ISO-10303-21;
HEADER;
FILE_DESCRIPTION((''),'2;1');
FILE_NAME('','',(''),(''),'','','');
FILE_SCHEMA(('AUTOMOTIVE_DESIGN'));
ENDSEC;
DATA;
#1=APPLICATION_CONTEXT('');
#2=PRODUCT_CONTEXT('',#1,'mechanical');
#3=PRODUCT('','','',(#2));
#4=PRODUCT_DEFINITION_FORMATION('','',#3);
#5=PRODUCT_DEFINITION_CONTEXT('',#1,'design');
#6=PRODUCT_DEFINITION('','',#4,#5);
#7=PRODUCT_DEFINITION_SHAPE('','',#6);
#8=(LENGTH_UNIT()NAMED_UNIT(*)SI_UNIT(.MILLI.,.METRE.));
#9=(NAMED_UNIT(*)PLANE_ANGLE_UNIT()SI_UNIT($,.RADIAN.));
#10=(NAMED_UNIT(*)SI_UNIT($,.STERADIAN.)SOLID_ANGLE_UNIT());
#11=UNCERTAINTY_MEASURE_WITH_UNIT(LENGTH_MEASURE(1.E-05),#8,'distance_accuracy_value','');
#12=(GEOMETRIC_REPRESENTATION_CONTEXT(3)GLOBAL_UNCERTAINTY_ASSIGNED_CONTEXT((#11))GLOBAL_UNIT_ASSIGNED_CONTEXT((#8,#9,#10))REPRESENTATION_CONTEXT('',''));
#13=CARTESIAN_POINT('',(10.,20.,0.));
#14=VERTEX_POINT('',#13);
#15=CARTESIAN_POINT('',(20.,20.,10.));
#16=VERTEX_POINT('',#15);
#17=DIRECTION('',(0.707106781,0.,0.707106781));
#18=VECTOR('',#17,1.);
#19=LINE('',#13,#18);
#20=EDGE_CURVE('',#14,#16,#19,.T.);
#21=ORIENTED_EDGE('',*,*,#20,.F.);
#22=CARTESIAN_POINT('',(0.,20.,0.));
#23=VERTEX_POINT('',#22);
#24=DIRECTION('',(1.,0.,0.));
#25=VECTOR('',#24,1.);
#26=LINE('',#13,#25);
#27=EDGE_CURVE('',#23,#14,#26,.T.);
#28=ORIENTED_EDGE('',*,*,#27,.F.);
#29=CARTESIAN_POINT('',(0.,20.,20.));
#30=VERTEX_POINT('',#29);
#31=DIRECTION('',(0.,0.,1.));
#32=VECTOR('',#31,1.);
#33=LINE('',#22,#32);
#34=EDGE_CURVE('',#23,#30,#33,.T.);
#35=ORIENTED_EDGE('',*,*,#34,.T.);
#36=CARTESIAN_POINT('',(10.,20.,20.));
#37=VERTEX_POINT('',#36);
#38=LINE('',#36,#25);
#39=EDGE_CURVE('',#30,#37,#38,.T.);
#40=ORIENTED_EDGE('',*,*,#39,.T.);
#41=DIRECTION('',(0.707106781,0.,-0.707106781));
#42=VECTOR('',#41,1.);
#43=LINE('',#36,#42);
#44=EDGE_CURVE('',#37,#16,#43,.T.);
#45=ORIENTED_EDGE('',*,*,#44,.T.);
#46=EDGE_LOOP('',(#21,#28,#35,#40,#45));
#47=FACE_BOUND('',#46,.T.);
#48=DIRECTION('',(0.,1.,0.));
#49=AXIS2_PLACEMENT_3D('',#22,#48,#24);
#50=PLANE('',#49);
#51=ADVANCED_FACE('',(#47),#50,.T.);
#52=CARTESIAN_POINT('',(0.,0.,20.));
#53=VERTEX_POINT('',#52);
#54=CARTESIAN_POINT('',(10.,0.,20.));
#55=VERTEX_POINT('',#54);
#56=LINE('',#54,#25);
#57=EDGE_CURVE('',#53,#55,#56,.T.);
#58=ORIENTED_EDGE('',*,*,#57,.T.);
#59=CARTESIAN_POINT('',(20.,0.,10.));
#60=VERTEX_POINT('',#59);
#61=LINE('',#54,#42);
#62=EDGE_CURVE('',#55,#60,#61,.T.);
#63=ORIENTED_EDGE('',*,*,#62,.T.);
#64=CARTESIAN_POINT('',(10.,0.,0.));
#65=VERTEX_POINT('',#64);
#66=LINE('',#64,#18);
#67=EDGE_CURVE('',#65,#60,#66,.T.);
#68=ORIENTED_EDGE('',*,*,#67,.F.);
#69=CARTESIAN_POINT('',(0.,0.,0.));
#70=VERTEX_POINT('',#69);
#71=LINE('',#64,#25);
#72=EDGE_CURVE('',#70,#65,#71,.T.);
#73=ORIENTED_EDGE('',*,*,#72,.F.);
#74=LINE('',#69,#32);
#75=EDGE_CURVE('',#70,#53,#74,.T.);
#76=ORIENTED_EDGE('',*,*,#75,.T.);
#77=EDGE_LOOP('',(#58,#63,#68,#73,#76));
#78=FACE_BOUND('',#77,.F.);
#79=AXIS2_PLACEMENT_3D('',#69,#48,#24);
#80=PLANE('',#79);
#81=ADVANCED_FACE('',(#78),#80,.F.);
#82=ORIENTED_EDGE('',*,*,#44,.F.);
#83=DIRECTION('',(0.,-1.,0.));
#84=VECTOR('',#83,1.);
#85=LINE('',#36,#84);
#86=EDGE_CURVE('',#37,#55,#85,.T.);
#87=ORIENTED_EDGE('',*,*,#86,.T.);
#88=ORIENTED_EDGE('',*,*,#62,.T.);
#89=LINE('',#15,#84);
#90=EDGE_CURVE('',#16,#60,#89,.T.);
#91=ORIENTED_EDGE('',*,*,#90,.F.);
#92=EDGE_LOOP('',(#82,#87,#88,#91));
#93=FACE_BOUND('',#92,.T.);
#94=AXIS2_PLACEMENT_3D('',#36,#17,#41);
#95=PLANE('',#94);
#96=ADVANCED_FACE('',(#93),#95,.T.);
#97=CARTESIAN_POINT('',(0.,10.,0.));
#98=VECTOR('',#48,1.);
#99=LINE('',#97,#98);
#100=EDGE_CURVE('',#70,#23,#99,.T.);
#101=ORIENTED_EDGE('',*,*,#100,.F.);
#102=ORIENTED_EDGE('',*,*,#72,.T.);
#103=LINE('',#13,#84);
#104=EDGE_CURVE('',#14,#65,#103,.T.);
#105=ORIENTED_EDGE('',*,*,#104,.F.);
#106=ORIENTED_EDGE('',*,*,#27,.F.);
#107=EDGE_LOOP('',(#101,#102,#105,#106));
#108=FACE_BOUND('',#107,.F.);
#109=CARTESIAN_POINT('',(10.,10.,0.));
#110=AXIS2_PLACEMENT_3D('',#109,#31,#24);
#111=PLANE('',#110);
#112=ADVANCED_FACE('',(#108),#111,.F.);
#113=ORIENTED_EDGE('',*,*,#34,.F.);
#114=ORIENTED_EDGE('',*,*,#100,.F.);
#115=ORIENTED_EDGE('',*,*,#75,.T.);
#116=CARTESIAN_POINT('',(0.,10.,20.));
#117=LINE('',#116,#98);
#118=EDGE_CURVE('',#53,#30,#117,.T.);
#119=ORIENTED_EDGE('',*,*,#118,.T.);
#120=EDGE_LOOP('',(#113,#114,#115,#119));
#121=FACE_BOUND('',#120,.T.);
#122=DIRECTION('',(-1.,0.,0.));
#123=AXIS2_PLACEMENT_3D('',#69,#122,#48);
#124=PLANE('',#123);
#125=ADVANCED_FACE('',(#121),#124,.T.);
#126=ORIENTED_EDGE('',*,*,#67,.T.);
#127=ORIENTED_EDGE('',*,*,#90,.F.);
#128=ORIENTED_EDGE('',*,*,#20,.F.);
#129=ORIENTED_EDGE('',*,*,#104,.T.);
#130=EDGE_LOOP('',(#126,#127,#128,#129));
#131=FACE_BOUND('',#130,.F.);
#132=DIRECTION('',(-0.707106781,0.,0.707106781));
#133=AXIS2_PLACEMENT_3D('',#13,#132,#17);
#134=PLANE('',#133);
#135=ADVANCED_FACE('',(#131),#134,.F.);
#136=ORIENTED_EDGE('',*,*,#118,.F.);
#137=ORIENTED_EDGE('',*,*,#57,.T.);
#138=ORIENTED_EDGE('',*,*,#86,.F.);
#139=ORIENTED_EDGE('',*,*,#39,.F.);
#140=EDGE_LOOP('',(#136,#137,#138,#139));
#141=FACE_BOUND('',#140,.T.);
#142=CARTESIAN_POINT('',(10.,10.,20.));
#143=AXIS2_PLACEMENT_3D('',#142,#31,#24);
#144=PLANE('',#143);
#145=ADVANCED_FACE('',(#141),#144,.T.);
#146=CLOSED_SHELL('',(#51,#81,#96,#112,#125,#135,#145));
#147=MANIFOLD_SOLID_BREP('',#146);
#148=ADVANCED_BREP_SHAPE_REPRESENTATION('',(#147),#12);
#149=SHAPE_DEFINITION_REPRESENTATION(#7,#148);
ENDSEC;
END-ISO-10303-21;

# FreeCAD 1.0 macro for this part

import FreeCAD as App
import Part
import Sketcher
from FreeCAD import Vector
Q = App.Units.Quantity


def add_polygon(sketch, points):
    """Adds a closed chain of lines whose ends are joined by coincident constraints."""
    first, n = sketch.GeometryCount, len(points)
    for a, b in zip(points, points[1:] + points[:1]):
        sketch.addGeometry(Part.LineSegment(App.Vector(*a, 0), App.Vector(*b, 0)), False)
    for i in range(n):
        sketch.addConstraint(Sketcher.Constraint("Coincident", first + i, 2, first + (i + 1) % n, 1))

doc = App.newDocument("Part")
params = doc.addObject("Spreadsheet::Sheet", "Params")
for row, (alias, value) in enumerate([
    ("sketch1_width", "20 mm"),
    ("pad1_length", "20 mm"),
    ("sketch2_width", "10 mm"),
    ("pocket1_length", "20 mm"),
    ("sketch3_width", "10 mm"),
    ("pocket2_length", "20 mm"),
], start=1):
    params.set(f"A{row}", alias)
    params.set(f"B{row}", "=" + value)
    params.setAlias(f"B{row}", alias)

body = doc.addObject("PartDesign::Body", "Body")

# Sketch on XY plane
sketch1 = body.newObject("Sketcher::SketchObject", "Sketch")
sketch1.AttachmentSupport = (doc.getObject("XY_Plane"), [""])
sketch1.MapMode = "FlatFace"
add_polygon(sketch1, [(0, 20), (0, 0), (20, 0), (20, 20)])  # lines 0-3
sketch1.addConstraint([
    Sketcher.Constraint("Vertical", 0),
    Sketcher.Constraint("Horizontal", 1),
    Sketcher.Constraint("Vertical", 2),
    Sketcher.Constraint("Horizontal", 3),
    Sketcher.Constraint("Coincident", 0, 2, -1, 1),
    Sketcher.Constraint("Equal", 3, 0),
    Sketcher.Constraint("DistanceX", 1, 1, 1, 2, Q("20 mm")),
])
sketch1.setExpression("Constraints[10]", "Params.sketch1_width")
pad1 = body.newObject("PartDesign::Pad", "Pad")
pad1.Profile = sketch1
pad1.setExpression("Length", "Params.pad1_length")

# Sketch on XZ plane
sketch2 = body.newObject("Sketcher::SketchObject", "Sketch001")
sketch2.AttachmentSupport = (doc.getObject("XZ_Plane"), [""])
sketch2.MapMode = "FlatFace"
sketch2.AttachmentOffset = App.Placement(Vector(0, 0, -20), App.Rotation())
add_polygon(sketch2, [(20, 0), (10, 0), (20, 10)])  # lines 0-2
sketch2.addConstraint([
    Sketcher.Constraint("Horizontal", 0),
    Sketcher.Constraint("Vertical", 2),
    Sketcher.Constraint("PointOnObject", 0, 2, -1),
    Sketcher.Constraint("Equal", 0, 2),
    Sketcher.Constraint("DistanceX", 0, 2, 0, 1, Q("10 mm")),
    Sketcher.Constraint("DistanceX", -1, 1, 0, 2, Q("10 mm")),
])
sketch2.setExpression("Constraints[7]", "Params.sketch2_width")
pocket1 = body.newObject("PartDesign::Pocket", "Pocket")
pocket1.Profile = sketch2
pocket1.setExpression("Length", "Params.pocket1_length")
pocket1.Reversed = True

# Sketch on XZ plane
sketch3 = body.newObject("Sketcher::SketchObject", "Sketch002")
sketch3.AttachmentSupport = (doc.getObject("XZ_Plane"), [""])
sketch3.MapMode = "FlatFace"
sketch3.AttachmentOffset = App.Placement(Vector(0, 0, -20), App.Rotation())
add_polygon(sketch3, [(10, 20), (20, 20), (20, 10)])  # lines 0-2
sketch3.addConstraint([
    Sketcher.Constraint("Horizontal", 0),
    Sketcher.Constraint("Vertical", 1),
    Sketcher.Constraint("Equal", 0, 1),
    Sketcher.Constraint("DistanceX", 0, 1, 0, 2, Q("10 mm")),
    Sketcher.Constraint("DistanceX", -1, 1, 0, 2, Q("20 mm")),
    Sketcher.Constraint("DistanceY", -1, 1, 0, 2, Q("20 mm")),
])
sketch3.setExpression("Constraints[6]", "Params.sketch3_width")
pocket2 = body.newObject("PartDesign::Pocket", "Pocket001")
pocket2.Profile = sketch3
pocket2.setExpression("Length", "Params.pocket2_length")
pocket2.Reversed = True

doc.recompute()
